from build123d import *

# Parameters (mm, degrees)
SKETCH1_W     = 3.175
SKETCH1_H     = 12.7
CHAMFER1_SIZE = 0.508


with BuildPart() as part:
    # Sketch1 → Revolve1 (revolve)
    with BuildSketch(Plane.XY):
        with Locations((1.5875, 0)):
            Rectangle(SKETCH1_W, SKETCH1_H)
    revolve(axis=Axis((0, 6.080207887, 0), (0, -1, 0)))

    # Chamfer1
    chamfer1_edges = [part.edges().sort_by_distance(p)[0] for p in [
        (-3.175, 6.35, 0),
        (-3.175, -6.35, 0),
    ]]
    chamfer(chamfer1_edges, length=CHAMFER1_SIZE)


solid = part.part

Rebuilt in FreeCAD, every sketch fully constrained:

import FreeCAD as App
import Part
import Sketcher
Q = App.Units.Quantity


def edges_at(feature, points):
    """Names of the edges that pass closest to the given points."""
    edges = feature.Shape.Edges
    near = lambda p: min(range(len(edges)), key=lambda i: edges[i].distToShape(Part.Vertex(*p))[0])
    return sorted({f"Edge{near(p) + 1}" for p in points})


def add_polygon(sketch, points):
    """Adds a closed chain of lines whose ends are joined by coincident constraints."""
    first, n = sketch.GeometryCount, len(points)
    for a, b in zip(points, points[1:] + points[:1]):
        sketch.addGeometry(Part.LineSegment(App.Vector(*a, 0), App.Vector(*b, 0)), False)
    for i in range(n):
        sketch.addConstraint(Sketcher.Constraint("Coincident", first + i, 2, first + (i + 1) % n, 1))

doc = App.newDocument("Part")
body = doc.addObject("PartDesign::Body", "Body")

# Sketch on XY plane
sketch1 = body.newObject("Sketcher::SketchObject", "Sketch")
sketch1.AttachmentSupport = (doc.getObject("XY_Plane"), [""])
sketch1.MapMode = "FlatFace"
add_polygon(sketch1, [(0, 6.3), (0, -6.3), (3.2, -6.3), (3.2, 6.3)])  # lines 0-3
sketch1.addConstraint([
    Sketcher.Constraint("Vertical", 0),
    Sketcher.Constraint("Horizontal", 1),
    Sketcher.Constraint("Vertical", 2),
    Sketcher.Constraint("Horizontal", 3),
    Sketcher.Constraint("Symmetric", 0, 2, 3, 2, -1, 1),
    Sketcher.Constraint("DistanceY", 0, 2, 0, 1, Q("0.5 in")),
    Sketcher.Constraint("DistanceX", 1, 1, 1, 2, Q("0.125 in")),
])
revolution = body.newObject("PartDesign::Revolution", "Revolution")
revolution.Profile = sketch1
revolution.ReferenceAxis = (sketch1, ["V_Axis"])
revolution.Angle = 360
doc.recompute()

chamfer = body.newObject("PartDesign::Chamfer", "Chamfer")
chamfer.Base = (revolution, edges_at(revolution, [(-3.175, 6.35, 0), (-3.175, -6.35, 0)]))
chamfer.Size = Q("0.02 in")

doc.recompute()
